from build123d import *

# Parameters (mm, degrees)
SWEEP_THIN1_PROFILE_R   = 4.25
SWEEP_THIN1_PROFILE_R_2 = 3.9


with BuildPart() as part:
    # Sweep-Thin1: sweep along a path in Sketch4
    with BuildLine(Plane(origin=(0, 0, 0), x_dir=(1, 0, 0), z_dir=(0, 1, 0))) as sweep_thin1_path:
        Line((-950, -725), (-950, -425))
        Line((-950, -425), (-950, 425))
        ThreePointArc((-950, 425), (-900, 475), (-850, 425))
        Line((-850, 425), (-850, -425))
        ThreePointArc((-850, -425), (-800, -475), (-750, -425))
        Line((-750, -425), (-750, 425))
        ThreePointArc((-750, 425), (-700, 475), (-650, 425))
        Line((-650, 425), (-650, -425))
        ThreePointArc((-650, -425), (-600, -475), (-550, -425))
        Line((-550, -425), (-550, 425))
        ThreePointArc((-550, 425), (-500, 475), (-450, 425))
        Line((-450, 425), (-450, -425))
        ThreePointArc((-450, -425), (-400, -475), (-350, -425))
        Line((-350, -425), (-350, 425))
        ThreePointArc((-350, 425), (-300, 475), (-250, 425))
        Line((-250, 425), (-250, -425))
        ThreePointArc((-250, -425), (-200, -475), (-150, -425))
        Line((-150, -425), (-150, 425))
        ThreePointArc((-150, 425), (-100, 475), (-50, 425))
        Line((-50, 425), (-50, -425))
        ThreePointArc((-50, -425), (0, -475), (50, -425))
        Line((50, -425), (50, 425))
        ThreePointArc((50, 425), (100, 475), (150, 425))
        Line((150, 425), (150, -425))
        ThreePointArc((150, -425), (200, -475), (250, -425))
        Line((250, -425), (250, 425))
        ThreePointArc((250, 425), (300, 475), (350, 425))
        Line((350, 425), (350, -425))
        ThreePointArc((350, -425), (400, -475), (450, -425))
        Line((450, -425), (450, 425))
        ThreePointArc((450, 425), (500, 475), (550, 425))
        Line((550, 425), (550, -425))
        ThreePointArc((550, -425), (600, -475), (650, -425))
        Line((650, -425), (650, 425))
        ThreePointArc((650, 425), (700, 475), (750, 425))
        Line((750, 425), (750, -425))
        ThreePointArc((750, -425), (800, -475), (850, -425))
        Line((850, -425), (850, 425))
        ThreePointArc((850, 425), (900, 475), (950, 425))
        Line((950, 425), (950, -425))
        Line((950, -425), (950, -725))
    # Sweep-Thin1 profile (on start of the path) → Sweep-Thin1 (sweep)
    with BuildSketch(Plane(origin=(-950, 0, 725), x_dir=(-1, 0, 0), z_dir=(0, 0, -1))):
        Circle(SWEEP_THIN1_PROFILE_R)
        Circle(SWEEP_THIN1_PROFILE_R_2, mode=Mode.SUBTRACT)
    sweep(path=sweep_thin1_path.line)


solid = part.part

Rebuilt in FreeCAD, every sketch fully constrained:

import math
import FreeCAD as App
import Part
import Sketcher
from FreeCAD import Vector
Q = App.Units.Quantity

doc = App.newDocument("Part")
params = doc.addObject("Spreadsheet::Sheet", "Params")
for row, (alias, value) in enumerate([
    ("sketch1_diameter", "8.5 mm"),
    ("sketch1_diameter2", "7.8 mm"),
    ("sketch2_radius", "50 mm"),
    ("sketch2_height", "1150 mm"),
    ("sketch2_height2", "850 mm"),
], start=1):
    params.set(f"A{row}", alias)
    params.set(f"B{row}", "=" + value)
    params.setAlias(f"B{row}", alias)

body = doc.addObject("PartDesign::Body", "Body")

sketch1 = body.newObject("Sketcher::SketchObject", "Sketch")
sketch1.AttachmentSupport = (doc.getObject("XY_Plane"), [""])
sketch1.MapMode = "FlatFace"
sketch1.AttachmentOffset = App.Placement(Vector(0, 0, 725), App.Rotation())
sketch1.addGeometry([
    Part.Circle(Vector(-950, 0, 0), Vector(0, 0, 1), 4.2),
    Part.Circle(Vector(-950, 0, 0), Vector(0, 0, 1), 3.9),
], False)
sketch1.addConstraint([
    Sketcher.Constraint("Coincident", 1, 3, 0, 3),
    Sketcher.Constraint("PointOnObject", 0, 3, -1),
    Sketcher.Constraint("Diameter", 0, Q("8.5 mm")),
    Sketcher.Constraint("Diameter", 1, Q("7.8 mm")),
    Sketcher.Constraint("DistanceX", 0, 3, -1, 1, Q("950 mm")),
])
sketch1.setExpression("Constraints[2]", "Params.sketch1_diameter")
sketch1.setExpression("Constraints[3]", "Params.sketch1_diameter2")

sketch2 = body.newObject("Sketcher::SketchObject", "Sketch001")
sketch2.AttachmentSupport = (doc.getObject("XZ_Plane"), [""])
sketch2.MapMode = "FlatFace"
sketch2.addGeometry([
    Part.LineSegment(Vector(-950, 725, 0), Vector(-950, -425, 0)),
    Part.ArcOfCircle(Part.Circle(Vector(-900, -425, 0), Vector(0, 0, 1), 50), math.radians(180), math.radians(360)),
    Part.LineSegment(Vector(-850, -425, 0), Vector(-850, 425, 0)),
    Part.ArcOfCircle(Part.Circle(Vector(-800, 425, 0), Vector(0, 0, 1), 50), math.radians(0), math.radians(180)),
    Part.LineSegment(Vector(-750, 425, 0), Vector(-750, -425, 0)),
    Part.ArcOfCircle(Part.Circle(Vector(-700, -425, 0), Vector(0, 0, 1), 50), math.radians(180), math.radians(360)),
    Part.LineSegment(Vector(-650, -425, 0), Vector(-650, 425, 0)),
    Part.ArcOfCircle(Part.Circle(Vector(-600, 425, 0), Vector(0, 0, 1), 50), math.radians(0), math.radians(180)),
    Part.LineSegment(Vector(-550, 425, 0), Vector(-550, -425, 0)),
    Part.ArcOfCircle(Part.Circle(Vector(-500, -425, 0), Vector(0, 0, 1), 50), math.radians(180), math.radians(360)),
    Part.LineSegment(Vector(-450, -425, 0), Vector(-450, 425, 0)),
    Part.ArcOfCircle(Part.Circle(Vector(-400, 425, 0), Vector(0, 0, 1), 50), math.radians(0), math.radians(180)),
    Part.LineSegment(Vector(-350, 425, 0), Vector(-350, -425, 0)),
    Part.ArcOfCircle(Part.Circle(Vector(-300, -425, 0), Vector(0, 0, 1), 50), math.radians(180), math.radians(360)),
    Part.LineSegment(Vector(-250, -425, 0), Vector(-250, 425, 0)),
    Part.ArcOfCircle(Part.Circle(Vector(-200, 425, 0), Vector(0, 0, 1), 50), math.radians(0), math.radians(180)),
    Part.LineSegment(Vector(-150, 425, 0), Vector(-150, -425, 0)),
    Part.ArcOfCircle(Part.Circle(Vector(-100, -425, 0), Vector(0, 0, 1), 50), math.radians(180), math.radians(360)),
    Part.LineSegment(Vector(-50, -425, 0), Vector(-50, 425, 0)),
    Part.ArcOfCircle(Part.Circle(Vector(0, 425, 0), Vector(0, 0, 1), 50), math.radians(0), math.radians(180)),
    Part.LineSegment(Vector(50, 425, 0), Vector(50, -425, 0)),
    Part.ArcOfCircle(Part.Circle(Vector(100, -425, 0), Vector(0, 0, 1), 50), math.radians(180), math.radians(360)),
    Part.LineSegment(Vector(150, -425, 0), Vector(150, 425, 0)),
    Part.ArcOfCircle(Part.Circle(Vector(200, 425, 0), Vector(0, 0, 1), 50), math.radians(0), math.radians(180)),
    Part.LineSegment(Vector(250, 425, 0), Vector(250, -425, 0)),
    Part.ArcOfCircle(Part.Circle(Vector(300, -425, 0), Vector(0, 0, 1), 50), math.radians(180), math.radians(360)),
    Part.LineSegment(Vector(350, -425, 0), Vector(350, 425, 0)),
    Part.ArcOfCircle(Part.Circle(Vector(400, 425, 0), Vector(0, 0, 1), 50), math.radians(0), math.radians(180)),
    Part.LineSegment(Vector(450, 425, 0), Vector(450, -425, 0)),
    Part.ArcOfCircle(Part.Circle(Vector(500, -425, 0), Vector(0, 0, 1), 50), math.radians(180), math.radians(360)),
    Part.LineSegment(Vector(550, -425, 0), Vector(550, 425, 0)),
    Part.ArcOfCircle(Part.Circle(Vector(600, 425, 0), Vector(0, 0, 1), 50), math.radians(0), math.radians(180)),
    Part.LineSegment(Vector(650, 425, 0), Vector(650, -425, 0)),
    Part.ArcOfCircle(Part.Circle(Vector(700, -425, 0), Vector(0, 0, 1), 50), math.radians(180), math.radians(360)),
    Part.LineSegment(Vector(750, -425, 0), Vector(750, 425, 0)),
    Part.ArcOfCircle(Part.Circle(Vector(800, 425, 0), Vector(0, 0, 1), 50), math.radians(0), math.radians(180)),
    Part.LineSegment(Vector(850, 425, 0), Vector(850, -425, 0)),
    Part.ArcOfCircle(Part.Circle(Vector(900, -425, 0), Vector(0, 0, 1), 50), math.radians(180), math.radians(360)),
    Part.LineSegment(Vector(950, -425, 0), Vector(950, 725, 0)),
], False)
sketch2.addConstraint([
    Sketcher.Constraint("Tangent", 0, 2, 1, 1),
    Sketcher.Constraint("Tangent", 1, 2, 2, 1),
    Sketcher.Constraint("Tangent", 2, 2, 3, 2),
    Sketcher.Constraint("Tangent", 3, 1, 4, 1),
    Sketcher.Constraint("Tangent", 4, 2, 5, 1),
    Sketcher.Constraint("Tangent", 5, 2, 6, 1),
    Sketcher.Constraint("Tangent", 6, 2, 7, 2),
    Sketcher.Constraint("Tangent", 7, 1, 8, 1),
    Sketcher.Constraint("Tangent", 8, 2, 9, 1),
    Sketcher.Constraint("Tangent", 9, 2, 10, 1),
    Sketcher.Constraint("Tangent", 10, 2, 11, 2),
    Sketcher.Constraint("Tangent", 11, 1, 12, 1),
    Sketcher.Constraint("Tangent", 12, 2, 13, 1),
    Sketcher.Constraint("Tangent", 13, 2, 14, 1),
    Sketcher.Constraint("Tangent", 14, 2, 15, 2),
    Sketcher.Constraint("Tangent", 15, 1, 16, 1),
    Sketcher.Constraint("Tangent", 16, 2, 17, 1),
    Sketcher.Constraint("Tangent", 17, 2, 18, 1),
    Sketcher.Constraint("Tangent", 18, 2, 19, 2),
    Sketcher.Constraint("Tangent", 19, 1, 20, 1),
    Sketcher.Constraint("Tangent", 20, 2, 21, 1),
    Sketcher.Constraint("Tangent", 21, 2, 22, 1),
    Sketcher.Constraint("Tangent", 22, 2, 23, 2),
    Sketcher.Constraint("Tangent", 23, 1, 24, 1),
    Sketcher.Constraint("Tangent", 24, 2, 25, 1),
    Sketcher.Constraint("Tangent", 25, 2, 26, 1),
    Sketcher.Constraint("Tangent", 26, 2, 27, 2),
    Sketcher.Constraint("Tangent", 27, 1, 28, 1),
    Sketcher.Constraint("Tangent", 28, 2, 29, 1),
    Sketcher.Constraint("Tangent", 29, 2, 30, 1),
    Sketcher.Constraint("Tangent", 30, 2, 31, 2),
    Sketcher.Constraint("Tangent", 31, 1, 32, 1),
    Sketcher.Constraint("Tangent", 32, 2, 33, 1),
    Sketcher.Constraint("Tangent", 33, 2, 34, 1),
    Sketcher.Constraint("Tangent", 34, 2, 35, 2),
    Sketcher.Constraint("Tangent", 35, 1, 36, 1),
    Sketcher.Constraint("Tangent", 36, 2, 37, 1),
    Sketcher.Constraint("Tangent", 37, 2, 38, 1),
    Sketcher.Constraint("Vertical", 0),
    Sketcher.Constraint("Vertical", 2),
    Sketcher.Constraint("Vertical", 4),
    Sketcher.Constraint("Vertical", 6),
    Sketcher.Constraint("Vertical", 8),
    Sketcher.Constraint("Vertical", 10),
    Sketcher.Constraint("Vertical", 12),
    Sketcher.Constraint("Vertical", 14),
    Sketcher.Constraint("Vertical", 16),
    Sketcher.Constraint("Vertical", 18),
    Sketcher.Constraint("Vertical", 20),
    Sketcher.Constraint("Vertical", 22),
    Sketcher.Constraint("Vertical", 24),
    Sketcher.Constraint("Vertical", 26),
    Sketcher.Constraint("Vertical", 28),
    Sketcher.Constraint("Vertical", 30),
    Sketcher.Constraint("Vertical", 32),
    Sketcher.Constraint("Vertical", 34),
    Sketcher.Constraint("Vertical", 36),
    Sketcher.Constraint("Vertical", 38),
    Sketcher.Constraint("Equal", 1, 3),
    Sketcher.Constraint("Equal", 3, 5),
    Sketcher.Constraint("Equal", 5, 7),
    Sketcher.Constraint("Equal", 7, 9),
    Sketcher.Constraint("Equal", 9, 11),
    Sketcher.Constraint("Equal", 11, 13),
    Sketcher.Constraint("Equal", 13, 15),
    Sketcher.Constraint("Equal", 15, 17),
    Sketcher.Constraint("Equal", 17, 19),
    Sketcher.Constraint("Equal", 19, 21),
    Sketcher.Constraint("Equal", 21, 23),
    Sketcher.Constraint("Equal", 23, 25),
    Sketcher.Constraint("Equal", 25, 27),
    Sketcher.Constraint("Equal", 27, 29),
    Sketcher.Constraint("Equal", 29, 31),
    Sketcher.Constraint("Equal", 31, 33),
    Sketcher.Constraint("Equal", 33, 35),
    Sketcher.Constraint("Equal", 35, 37),
    Sketcher.Constraint("Symmetric", 17, 2, 19, 1, -1, 1),
    Sketcher.Constraint("Horizontal", 1, 3, 5, 3),
    Sketcher.Constraint("Horizontal", 3, 3, 7, 3),
    Sketcher.Constraint("Horizontal", 5, 3, 9, 3),
    Sketcher.Constraint("Horizontal", 7, 3, 11, 3),
    Sketcher.Constraint("Horizontal", 9, 3, 13, 3),
    Sketcher.Constraint("Horizontal", 11, 3, 15, 3),
    Sketcher.Constraint("Horizontal", 13, 3, 17, 3),
    Sketcher.Constraint("Horizontal", 15, 3, 19, 3),
    Sketcher.Constraint("Horizontal", 17, 3, 21, 3),
    Sketcher.Constraint("Horizontal", 19, 3, 23, 3),
    Sketcher.Constraint("Horizontal", 21, 3, 25, 3),
    Sketcher.Constraint("Horizontal", 23, 3, 27, 3),
    Sketcher.Constraint("Horizontal", 25, 3, 29, 3),
    Sketcher.Constraint("Horizontal", 27, 3, 31, 3),
    Sketcher.Constraint("Horizontal", 29, 3, 33, 3),
    Sketcher.Constraint("Horizontal", 31, 3, 35, 3),
    Sketcher.Constraint("Horizontal", 33, 3, 37, 3),
    Sketcher.Constraint("Horizontal", 0, 1, 38, 2),
    Sketcher.Constraint("Radius", 1, Q("50 mm")),
    Sketcher.Constraint("DistanceY", 0, 2, 0, 1, Q("1150 mm")),
    Sketcher.Constraint("DistanceY", 2, 1, 2, 2, Q("850 mm")),
])
sketch2.setExpression("Constraints[95]", "Params.sketch2_radius")
sketch2.setExpression("Constraints[96]", "Params.sketch2_height")
sketch2.setExpression("Constraints[97]", "Params.sketch2_height2")
doc.recompute()

additivepipe = body.newObject("PartDesign::AdditivePipe", "AdditivePipe")
additivepipe.Profile = sketch1
additivepipe.Spine = (sketch2, ["Edge1", "Edge2", "Edge3", "Edge4", "Edge5", "Edge6", "Edge7", "Edge8", "Edge9", "Edge10", "Edge11", "Edge12", "Edge13", "Edge14", "Edge15", "Edge16", "Edge17", "Edge18", "Edge19", "Edge20", "Edge21", "Edge22", "Edge23", "Edge24", "Edge25", "Edge26", "Edge27", "Edge28", "Edge29", "Edge30", "Edge31", "Edge32", "Edge33", "Edge34", "Edge35", "Edge36", "Edge37", "Edge38", "Edge39"])

doc.recompute()
